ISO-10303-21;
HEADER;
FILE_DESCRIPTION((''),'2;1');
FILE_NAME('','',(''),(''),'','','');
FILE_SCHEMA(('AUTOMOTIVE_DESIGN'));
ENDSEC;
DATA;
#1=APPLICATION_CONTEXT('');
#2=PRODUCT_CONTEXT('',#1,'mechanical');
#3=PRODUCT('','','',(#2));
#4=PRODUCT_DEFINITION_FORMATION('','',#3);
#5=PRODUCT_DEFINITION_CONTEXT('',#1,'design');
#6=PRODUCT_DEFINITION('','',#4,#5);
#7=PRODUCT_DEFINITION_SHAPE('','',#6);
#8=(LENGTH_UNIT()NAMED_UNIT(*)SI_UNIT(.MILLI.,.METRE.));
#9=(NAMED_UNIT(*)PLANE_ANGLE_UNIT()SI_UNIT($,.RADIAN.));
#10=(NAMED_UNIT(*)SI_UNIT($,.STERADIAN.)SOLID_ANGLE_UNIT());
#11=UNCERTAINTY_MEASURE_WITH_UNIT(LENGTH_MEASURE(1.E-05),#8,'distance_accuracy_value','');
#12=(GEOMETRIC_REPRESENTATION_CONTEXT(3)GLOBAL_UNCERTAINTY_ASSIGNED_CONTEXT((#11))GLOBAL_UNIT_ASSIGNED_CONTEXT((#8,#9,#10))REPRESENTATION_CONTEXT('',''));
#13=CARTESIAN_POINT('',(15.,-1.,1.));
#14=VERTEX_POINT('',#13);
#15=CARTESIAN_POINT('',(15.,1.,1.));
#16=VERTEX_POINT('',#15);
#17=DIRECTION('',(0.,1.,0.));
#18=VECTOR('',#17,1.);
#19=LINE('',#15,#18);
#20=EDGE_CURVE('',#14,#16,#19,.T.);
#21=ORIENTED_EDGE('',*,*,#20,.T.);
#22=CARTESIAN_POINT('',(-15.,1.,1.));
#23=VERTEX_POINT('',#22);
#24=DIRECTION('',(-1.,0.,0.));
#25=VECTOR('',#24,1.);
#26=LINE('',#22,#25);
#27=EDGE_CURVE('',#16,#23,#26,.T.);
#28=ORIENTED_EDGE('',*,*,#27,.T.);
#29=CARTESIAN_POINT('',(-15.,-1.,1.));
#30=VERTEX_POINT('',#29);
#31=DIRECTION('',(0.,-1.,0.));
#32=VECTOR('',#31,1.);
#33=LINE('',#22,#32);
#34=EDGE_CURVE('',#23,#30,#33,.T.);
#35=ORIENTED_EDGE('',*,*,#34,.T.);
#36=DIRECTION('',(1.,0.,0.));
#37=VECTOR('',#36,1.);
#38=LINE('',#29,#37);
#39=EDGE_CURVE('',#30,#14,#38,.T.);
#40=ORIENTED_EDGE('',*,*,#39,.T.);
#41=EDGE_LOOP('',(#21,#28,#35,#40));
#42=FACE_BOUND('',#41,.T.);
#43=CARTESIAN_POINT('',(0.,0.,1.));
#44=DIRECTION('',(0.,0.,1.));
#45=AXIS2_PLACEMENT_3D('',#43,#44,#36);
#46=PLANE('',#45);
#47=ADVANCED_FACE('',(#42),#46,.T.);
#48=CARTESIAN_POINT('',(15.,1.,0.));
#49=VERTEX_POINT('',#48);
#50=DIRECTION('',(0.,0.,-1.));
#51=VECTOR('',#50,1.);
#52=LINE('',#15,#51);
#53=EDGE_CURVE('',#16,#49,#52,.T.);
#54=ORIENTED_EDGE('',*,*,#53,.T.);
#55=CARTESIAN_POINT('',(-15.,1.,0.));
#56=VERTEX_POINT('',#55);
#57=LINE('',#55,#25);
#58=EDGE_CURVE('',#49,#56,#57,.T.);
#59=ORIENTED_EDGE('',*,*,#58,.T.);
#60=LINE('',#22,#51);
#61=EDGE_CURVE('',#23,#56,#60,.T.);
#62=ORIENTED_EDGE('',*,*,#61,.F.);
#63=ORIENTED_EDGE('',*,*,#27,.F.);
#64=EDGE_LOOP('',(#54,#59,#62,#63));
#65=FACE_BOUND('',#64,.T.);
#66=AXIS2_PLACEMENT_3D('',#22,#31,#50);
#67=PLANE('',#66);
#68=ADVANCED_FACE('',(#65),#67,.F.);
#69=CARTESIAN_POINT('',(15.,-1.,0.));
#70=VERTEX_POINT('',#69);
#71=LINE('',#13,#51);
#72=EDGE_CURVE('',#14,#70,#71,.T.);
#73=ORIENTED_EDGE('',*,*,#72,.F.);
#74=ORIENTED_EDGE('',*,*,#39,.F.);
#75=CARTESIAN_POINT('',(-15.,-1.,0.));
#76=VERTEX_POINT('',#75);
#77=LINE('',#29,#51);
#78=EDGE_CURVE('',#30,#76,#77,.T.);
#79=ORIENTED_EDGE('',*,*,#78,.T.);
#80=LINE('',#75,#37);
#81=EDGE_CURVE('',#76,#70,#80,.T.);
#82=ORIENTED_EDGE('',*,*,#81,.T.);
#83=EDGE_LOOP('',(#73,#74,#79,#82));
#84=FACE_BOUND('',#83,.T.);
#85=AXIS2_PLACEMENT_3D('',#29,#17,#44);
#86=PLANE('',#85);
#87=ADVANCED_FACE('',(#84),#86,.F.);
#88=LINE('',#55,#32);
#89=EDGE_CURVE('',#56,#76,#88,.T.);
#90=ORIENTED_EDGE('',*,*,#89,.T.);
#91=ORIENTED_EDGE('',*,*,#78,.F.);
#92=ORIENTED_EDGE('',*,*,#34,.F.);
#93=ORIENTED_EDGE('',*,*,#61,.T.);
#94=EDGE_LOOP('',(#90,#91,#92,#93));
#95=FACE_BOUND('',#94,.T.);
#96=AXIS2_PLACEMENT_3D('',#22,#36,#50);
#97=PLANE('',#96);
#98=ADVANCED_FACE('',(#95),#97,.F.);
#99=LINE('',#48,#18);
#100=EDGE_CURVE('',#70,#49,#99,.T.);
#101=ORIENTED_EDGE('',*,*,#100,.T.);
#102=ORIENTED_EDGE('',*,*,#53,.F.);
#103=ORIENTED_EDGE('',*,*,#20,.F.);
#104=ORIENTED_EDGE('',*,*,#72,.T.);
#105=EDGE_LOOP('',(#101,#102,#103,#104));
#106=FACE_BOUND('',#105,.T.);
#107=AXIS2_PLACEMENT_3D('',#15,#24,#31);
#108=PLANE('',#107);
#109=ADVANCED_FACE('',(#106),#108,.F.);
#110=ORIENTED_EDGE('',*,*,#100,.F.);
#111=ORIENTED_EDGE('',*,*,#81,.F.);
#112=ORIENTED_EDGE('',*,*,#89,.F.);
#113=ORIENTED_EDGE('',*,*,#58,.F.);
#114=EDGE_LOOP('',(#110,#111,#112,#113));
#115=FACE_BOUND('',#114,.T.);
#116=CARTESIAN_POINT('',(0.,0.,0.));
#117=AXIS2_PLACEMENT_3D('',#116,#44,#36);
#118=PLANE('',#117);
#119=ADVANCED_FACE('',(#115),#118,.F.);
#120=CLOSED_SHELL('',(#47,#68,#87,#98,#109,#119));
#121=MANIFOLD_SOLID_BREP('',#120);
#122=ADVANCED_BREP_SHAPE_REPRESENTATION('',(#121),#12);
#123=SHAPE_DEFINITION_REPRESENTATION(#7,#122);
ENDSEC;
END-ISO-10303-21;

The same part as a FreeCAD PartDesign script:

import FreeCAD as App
import Part
import Sketcher
from FreeCAD import Vector
Q = App.Units.Quantity

doc = App.newDocument("Part")
body = doc.addObject("PartDesign::Body", "Body")

sketch1 = body.newObject("Sketcher::SketchObject", "Sketch")
sketch1.AttachmentSupport = (doc.getObject("XY_Plane"), [""])
sketch1.MapMode = "FlatFace"
sketch1.addGeometry([
    Part.LineSegment(Vector(-15, 1, 0), Vector(-15, -1, 0)),
    Part.LineSegment(Vector(-15, -1, 0), Vector(15, -1, 0)),
    Part.LineSegment(Vector(15, -1, 0), Vector(15, 1, 0)),
    Part.LineSegment(Vector(15, 1, 0), Vector(-15, 1, 0)),
], False)
sketch1.addConstraint([
    Sketcher.Constraint("Coincident", 0, 2, 1, 1),
    Sketcher.Constraint("Coincident", 1, 2, 2, 1),
    Sketcher.Constraint("Coincident", 2, 2, 3, 1),
    Sketcher.Constraint("Coincident", 3, 2, 0, 1),
    Sketcher.Constraint("Vertical", 0),
    Sketcher.Constraint("Horizontal", 1),
    Sketcher.Constraint("Vertical", 2),
    Sketcher.Constraint("Horizontal", 3),
    Sketcher.Constraint("Symmetric", 0, 2, 2, 2, -1, 1),
    Sketcher.Constraint("DistanceX", 1, 1, 1, 2, Q("30 mm")),
    Sketcher.Constraint("DistanceY", 0, 2, 0, 1, Q("2 mm")),
])
pad1 = body.newObject("PartDesign::Pad", "Pad")
pad1.Profile = sketch1
pad1.Length = 1

doc.recompute()
